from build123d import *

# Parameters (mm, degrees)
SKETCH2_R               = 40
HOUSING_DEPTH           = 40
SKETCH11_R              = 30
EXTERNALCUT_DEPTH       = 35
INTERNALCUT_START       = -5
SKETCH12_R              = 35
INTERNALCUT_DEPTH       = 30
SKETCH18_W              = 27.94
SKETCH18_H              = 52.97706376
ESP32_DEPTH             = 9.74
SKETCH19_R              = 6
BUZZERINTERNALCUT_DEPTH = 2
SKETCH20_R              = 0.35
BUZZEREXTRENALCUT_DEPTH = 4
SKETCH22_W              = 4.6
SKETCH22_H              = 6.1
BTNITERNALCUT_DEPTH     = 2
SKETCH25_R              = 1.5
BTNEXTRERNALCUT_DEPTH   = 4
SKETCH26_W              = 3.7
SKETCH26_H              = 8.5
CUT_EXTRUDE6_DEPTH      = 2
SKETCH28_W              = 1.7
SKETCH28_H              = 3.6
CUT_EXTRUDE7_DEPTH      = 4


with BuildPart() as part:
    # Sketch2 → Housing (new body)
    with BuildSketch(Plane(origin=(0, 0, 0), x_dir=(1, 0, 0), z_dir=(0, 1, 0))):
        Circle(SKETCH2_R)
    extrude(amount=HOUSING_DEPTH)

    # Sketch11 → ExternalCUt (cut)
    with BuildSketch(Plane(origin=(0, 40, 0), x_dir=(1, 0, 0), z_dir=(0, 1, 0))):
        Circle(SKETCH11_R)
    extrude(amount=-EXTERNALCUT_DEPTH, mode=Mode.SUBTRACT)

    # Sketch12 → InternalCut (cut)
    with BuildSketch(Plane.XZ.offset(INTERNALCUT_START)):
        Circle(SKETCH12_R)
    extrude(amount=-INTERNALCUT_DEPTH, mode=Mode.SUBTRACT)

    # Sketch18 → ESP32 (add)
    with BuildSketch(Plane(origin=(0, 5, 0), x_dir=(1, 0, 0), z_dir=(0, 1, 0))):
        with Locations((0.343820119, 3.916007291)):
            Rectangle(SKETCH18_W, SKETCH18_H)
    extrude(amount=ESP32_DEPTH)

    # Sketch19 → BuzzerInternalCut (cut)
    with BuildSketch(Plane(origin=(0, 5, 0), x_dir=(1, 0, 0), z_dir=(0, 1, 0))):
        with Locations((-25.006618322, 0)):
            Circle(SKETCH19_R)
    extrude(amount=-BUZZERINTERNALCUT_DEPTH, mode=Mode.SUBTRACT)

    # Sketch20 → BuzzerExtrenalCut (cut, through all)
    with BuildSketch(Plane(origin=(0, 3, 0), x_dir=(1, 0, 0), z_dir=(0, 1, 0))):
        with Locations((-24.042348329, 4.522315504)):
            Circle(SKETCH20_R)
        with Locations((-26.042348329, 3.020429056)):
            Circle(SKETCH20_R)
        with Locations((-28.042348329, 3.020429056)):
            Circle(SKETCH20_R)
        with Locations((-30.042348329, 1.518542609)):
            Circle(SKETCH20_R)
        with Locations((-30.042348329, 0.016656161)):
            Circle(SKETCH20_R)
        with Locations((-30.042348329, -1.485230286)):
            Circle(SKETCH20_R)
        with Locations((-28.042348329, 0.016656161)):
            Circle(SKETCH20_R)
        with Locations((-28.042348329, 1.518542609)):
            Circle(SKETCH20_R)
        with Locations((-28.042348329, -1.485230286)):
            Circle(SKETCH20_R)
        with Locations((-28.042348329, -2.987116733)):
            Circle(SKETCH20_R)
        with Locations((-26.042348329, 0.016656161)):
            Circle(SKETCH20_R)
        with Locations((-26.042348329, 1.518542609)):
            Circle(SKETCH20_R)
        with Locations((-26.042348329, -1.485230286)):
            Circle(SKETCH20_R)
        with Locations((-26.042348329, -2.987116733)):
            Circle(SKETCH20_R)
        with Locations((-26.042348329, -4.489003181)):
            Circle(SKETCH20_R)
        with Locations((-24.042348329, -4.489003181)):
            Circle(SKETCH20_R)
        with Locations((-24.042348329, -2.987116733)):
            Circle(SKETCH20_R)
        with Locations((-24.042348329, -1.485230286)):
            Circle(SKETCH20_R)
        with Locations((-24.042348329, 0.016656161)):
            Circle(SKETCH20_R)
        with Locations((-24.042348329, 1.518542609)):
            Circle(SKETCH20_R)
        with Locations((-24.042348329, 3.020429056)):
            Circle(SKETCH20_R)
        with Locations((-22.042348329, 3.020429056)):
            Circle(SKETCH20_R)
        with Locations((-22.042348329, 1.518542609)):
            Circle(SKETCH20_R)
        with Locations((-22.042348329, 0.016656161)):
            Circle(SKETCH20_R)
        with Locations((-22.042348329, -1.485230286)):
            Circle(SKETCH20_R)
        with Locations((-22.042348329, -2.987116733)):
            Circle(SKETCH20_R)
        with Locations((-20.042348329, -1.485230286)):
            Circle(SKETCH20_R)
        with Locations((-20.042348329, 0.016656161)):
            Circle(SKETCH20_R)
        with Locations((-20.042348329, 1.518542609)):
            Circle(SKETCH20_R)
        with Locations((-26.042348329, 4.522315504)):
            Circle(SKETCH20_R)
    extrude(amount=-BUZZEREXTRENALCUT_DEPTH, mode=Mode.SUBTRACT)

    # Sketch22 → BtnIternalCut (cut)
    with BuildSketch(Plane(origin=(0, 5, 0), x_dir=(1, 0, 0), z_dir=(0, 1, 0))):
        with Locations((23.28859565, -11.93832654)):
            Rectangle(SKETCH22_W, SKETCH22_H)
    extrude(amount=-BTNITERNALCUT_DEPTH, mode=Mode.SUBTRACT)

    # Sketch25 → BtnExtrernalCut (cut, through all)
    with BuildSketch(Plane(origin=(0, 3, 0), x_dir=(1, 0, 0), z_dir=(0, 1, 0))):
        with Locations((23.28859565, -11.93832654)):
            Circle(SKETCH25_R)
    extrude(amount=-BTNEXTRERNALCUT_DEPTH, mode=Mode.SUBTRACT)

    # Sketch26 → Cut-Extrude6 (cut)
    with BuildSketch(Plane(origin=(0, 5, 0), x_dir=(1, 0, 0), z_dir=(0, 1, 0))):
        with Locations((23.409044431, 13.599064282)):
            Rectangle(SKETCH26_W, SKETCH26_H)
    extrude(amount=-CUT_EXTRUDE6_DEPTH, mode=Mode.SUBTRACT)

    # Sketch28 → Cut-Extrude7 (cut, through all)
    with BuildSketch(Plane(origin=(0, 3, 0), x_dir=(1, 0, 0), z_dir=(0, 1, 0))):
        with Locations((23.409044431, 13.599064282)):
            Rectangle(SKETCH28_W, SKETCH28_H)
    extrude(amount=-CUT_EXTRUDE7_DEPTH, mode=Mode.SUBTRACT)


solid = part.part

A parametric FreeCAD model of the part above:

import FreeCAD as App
import Part
import Sketcher

V = App.Vector

doc = App.newDocument("Part")
body = doc.addObject("PartDesign::Body", "Body")

sketch1 = body.newObject("Sketcher::SketchObject", "Sketch")
sketch1.AttachmentSupport = (doc.getObject("XZ_Plane"), [""])
sketch1.MapMode = "FlatFace"
sketch1.addGeometry(Part.Circle(V(0, 0, 0), V(0, 0, 1), 40), False)
sketch1.addConstraint([
    Sketcher.Constraint("Coincident", 0, 3, -1, 1),
    Sketcher.Constraint("Diameter", 0, 80.0),
])
pad1 = body.newObject("PartDesign::Pad", "Pad")
pad1.Profile = sketch1
pad1.Length = 40
pad1.Reversed = True

sketch2 = body.newObject("Sketcher::SketchObject", "Sketch001")
sketch2.AttachmentSupport = (doc.getObject("XZ_Plane"), [""])
sketch2.MapMode = "FlatFace"
sketch2.AttachmentOffset = App.Placement(V(0, 0, -40), App.Rotation())
sketch2.addGeometry(Part.Circle(V(0, 0, 0), V(0, 0, 1), 30), False)
sketch2.addConstraint([
    Sketcher.Constraint("Coincident", 0, 3, -1, 1),
    Sketcher.Constraint("Diameter", 0, 60.0),
])
pocket1 = body.newObject("PartDesign::Pocket", "Pocket")
pocket1.Profile = sketch2
pocket1.Length = 35
pocket1.Reversed = True

sketch3 = body.newObject("Sketcher::SketchObject", "Sketch002")
sketch3.AttachmentSupport = (doc.getObject("XZ_Plane"), [""])
sketch3.MapMode = "FlatFace"
sketch3.AttachmentOffset = App.Placement(V(0, 0, -5), App.Rotation())
sketch3.addGeometry(Part.Circle(V(0, 0, 0), V(0, 0, 1), 35), False)
sketch3.addConstraint([
    Sketcher.Constraint("Coincident", 0, 3, -1, 1),
    Sketcher.Constraint("Diameter", 0, 70.0),
])
pocket2 = body.newObject("PartDesign::Pocket", "Pocket001")
pocket2.Profile = sketch3
pocket2.Length = 30

sketch4 = body.newObject("Sketcher::SketchObject", "Sketch003")
sketch4.AttachmentSupport = (doc.getObject("XZ_Plane"), [""])
sketch4.MapMode = "FlatFace"
sketch4.AttachmentOffset = App.Placement(V(0, 0, -5), App.Rotation())
sketch4.addGeometry([
    Part.LineSegment(V(-14, -30, 0), V(-14, 23, 0)),
    Part.LineSegment(V(-14, 23, 0), V(14, 23, 0)),
    Part.LineSegment(V(14, 23, 0), V(14, -30, 0)),
    Part.LineSegment(V(14, -30, 0), V(-14, -30, 0)),
], False)
sketch4.addConstraint([
    Sketcher.Constraint("Coincident", 0, 2, 1, 1),
    Sketcher.Constraint("Coincident", 1, 2, 2, 1),
    Sketcher.Constraint("Coincident", 2, 2, 3, 1),
    Sketcher.Constraint("Coincident", 3, 2, 0, 1),
    Sketcher.Constraint("Vertical", 0),
    Sketcher.Constraint("Horizontal", 1),
    Sketcher.Constraint("Vertical", 2),
    Sketcher.Constraint("Horizontal", 3),
    Sketcher.Constraint("DistanceX", 1, 1, 1, 2, 27.94),
    Sketcher.Constraint("DistanceY", 0, 1, 0, 2, 52.977064),
    Sketcher.Constraint("DistanceX", 0, 2, -1, 1, 13.62618),
    Sketcher.Constraint("DistanceY", 2, 2, -1, 1, 30.404539),
])
pad2 = body.newObject("PartDesign::Pad", "Pad001")
pad2.Profile = sketch4
pad2.Length = 9.74
pad2.Reversed = True

sketch5 = body.newObject("Sketcher::SketchObject", "Sketch004")
sketch5.AttachmentSupport = (doc.getObject("XZ_Plane"), [""])
sketch5.MapMode = "FlatFace"
sketch5.AttachmentOffset = App.Placement(V(0, 0, -5), App.Rotation())
sketch5.addGeometry(Part.Circle(V(-25, 0, 0), V(0, 0, 1), 6), False)
sketch5.addConstraint([
    Sketcher.Constraint("PointOnObject", 0, 3, -1),
    Sketcher.Constraint("Diameter", 0, 12.0),
    Sketcher.Constraint("DistanceX", 0, 3, -1, 1, 25.006618),
])
pocket3 = body.newObject("PartDesign::Pocket", "Pocket002")
pocket3.Profile = sketch5
pocket3.Length = 2
pocket3.Reversed = True

sketch6 = body.newObject("Sketcher::SketchObject", "Sketch005")
sketch6.AttachmentSupport = (doc.getObject("XZ_Plane"), [""])
sketch6.MapMode = "FlatFace"
sketch6.AttachmentOffset = App.Placement(V(0, 0, -3), App.Rotation())
sketch6.addGeometry([
    Part.Circle(V(-24.04, -4.52, 0), V(0, 0, 1), 0.35),
    Part.Circle(V(-26.04, -3.02, 0), V(0, 0, 1), 0.35),
    Part.Circle(V(-28.04, -3.02, 0), V(0, 0, 1), 0.35),
    Part.Circle(V(-30.04, -1.52, 0), V(0, 0, 1), 0.35),
    Part.Circle(V(-30.04, -0.02, 0), V(0, 0, 1), 0.35),
    Part.Circle(V(-30.04, 1.49, 0), V(0, 0, 1), 0.35),
    Part.Circle(V(-28.04, -0.02, 0), V(0, 0, 1), 0.35),
    Part.Circle(V(-28.04, -1.52, 0), V(0, 0, 1), 0.35),
    Part.Circle(V(-28.04, 1.49, 0), V(0, 0, 1), 0.35),
    Part.Circle(V(-28.04, 2.99, 0), V(0, 0, 1), 0.35),
    Part.Circle(V(-26.04, -0.02, 0), V(0, 0, 1), 0.35),
    Part.Circle(V(-26.04, -1.52, 0), V(0, 0, 1), 0.35),
    Part.Circle(V(-26.04, 1.49, 0), V(0, 0, 1), 0.35),
    Part.Circle(V(-26.04, 2.99, 0), V(0, 0, 1), 0.35),
    Part.Circle(V(-26.04, 4.49, 0), V(0, 0, 1), 0.35),
    Part.Circle(V(-24.04, 4.49, 0), V(0, 0, 1), 0.35),
    Part.Circle(V(-24.04, 2.99, 0), V(0, 0, 1), 0.35),
    Part.Circle(V(-24.04, 1.49, 0), V(0, 0, 1), 0.35),
    Part.Circle(V(-24.04, -0.02, 0), V(0, 0, 1), 0.35),
    Part.Circle(V(-24.04, -1.52, 0), V(0, 0, 1), 0.35),
    Part.Circle(V(-24.04, -3.02, 0), V(0, 0, 1), 0.35),
    Part.Circle(V(-22.04, -3.02, 0), V(0, 0, 1), 0.35),
    Part.Circle(V(-22.04, -1.52, 0), V(0, 0, 1), 0.35),
    Part.Circle(V(-22.04, -0.02, 0), V(0, 0, 1), 0.35),
    Part.Circle(V(-22.04, 1.49, 0), V(0, 0, 1), 0.35),
    Part.Circle(V(-22.04, 2.99, 0), V(0, 0, 1), 0.35),
    Part.Circle(V(-20.04, 1.49, 0), V(0, 0, 1), 0.35),
    Part.Circle(V(-20.04, -0.02, 0), V(0, 0, 1), 0.35),
    Part.Circle(V(-20.04, -1.52, 0), V(0, 0, 1), 0.35),
    Part.Circle(V(-26.04, -4.52, 0), V(0, 0, 1), 0.35),
], False)
sketch6.addConstraint([
    Sketcher.Constraint("Equal", 0, 1),
    Sketcher.Constraint("Equal", 1, 2),
    Sketcher.Constraint("Equal", 2, 3),
    Sketcher.Constraint("Equal", 3, 4),
    Sketcher.Constraint("Equal", 4, 5),
    Sketcher.Constraint("Equal", 5, 6),
    Sketcher.Constraint("Equal", 6, 7),
    Sketcher.Constraint("Equal", 7, 8),
    Sketcher.Constraint("Equal", 8, 9),
    Sketcher.Constraint("Equal", 9, 10),
    Sketcher.Constraint("Equal", 10, 11),
    Sketcher.Constraint("Equal", 11, 12),
    Sketcher.Constraint("Equal", 12, 13),
    Sketcher.Constraint("Equal", 13, 14),
    Sketcher.Constraint("Equal", 14, 15),
    Sketcher.Constraint("Equal", 15, 16),
    Sketcher.Constraint("Equal", 16, 17),
    Sketcher.Constraint("Equal", 17, 18),
    Sketcher.Constraint("Equal", 18, 19),
    Sketcher.Constraint("Equal", 19, 20),
    Sketcher.Constraint("Equal", 20, 21),
    Sketcher.Constraint("Equal", 21, 22),
    Sketcher.Constraint("Equal", 22, 23),
    Sketcher.Constraint("Equal", 23, 24),
    Sketcher.Constraint("Equal", 24, 25),
    Sketcher.Constraint("Equal", 25, 26),
    Sketcher.Constraint("Equal", 26, 27),
    Sketcher.Constraint("Equal", 27, 28),
    Sketcher.Constraint("Equal", 28, 29),
    Sketcher.Constraint("Horizontal", 1, 3, 2, 3),
    Sketcher.Constraint("Horizontal", 4, 3, 6, 3),
    Sketcher.Constraint("Horizontal", 3, 3, 7, 3),
    Sketcher.Constraint("Horizontal", 5, 3, 8, 3),
    Sketcher.Constraint("Horizontal", 6, 3, 10, 3),
    Sketcher.Constraint("Horizontal", 7, 3, 11, 3),
    Sketcher.Constraint("Horizontal", 8, 3, 12, 3),
    Sketcher.Constraint("Horizontal", 9, 3, 13, 3),
    Sketcher.Constraint("Horizontal", 14, 3, 15, 3),
    Sketcher.Constraint("Horizontal", 13, 3, 16, 3),
    Sketcher.Constraint("Horizontal", 12, 3, 17, 3),
    Sketcher.Constraint("Horizontal", 10, 3, 18, 3),
    Sketcher.Constraint("Horizontal", 11, 3, 19, 3),
    Sketcher.Constraint("Horizontal", 2, 3, 20, 3),
    Sketcher.Constraint("Horizontal", 20, 3, 21, 3),
    Sketcher.Constraint("Horizontal", 19, 3, 22, 3),
    Sketcher.Constraint("Horizontal", 18, 3, 23, 3),
    Sketcher.Constraint("Horizontal", 17, 3, 24, 3),
    Sketcher.Constraint("Horizontal", 16, 3, 25, 3),
    Sketcher.Constraint("Horizontal", 24, 3, 26, 3),
    Sketcher.Constraint("Horizontal", 23, 3, 27, 3),
    Sketcher.Constraint("Horizontal", 22, 3, 28, 3),
    Sketcher.Constraint("Horizontal", 0, 3, 29, 3),
    Sketcher.Constraint("Vertical", 3, 3, 4, 3),
    Sketcher.Constraint("Vertical", 4, 3, 5, 3),
    Sketcher.Constraint("Vertical", 2, 3, 6, 3),
    Sketcher.Constraint("Vertical", 6, 3, 7, 3),
    Sketcher.Constraint("Vertical", 7, 3, 8, 3),
    Sketcher.Constraint("Vertical", 8, 3, 9, 3),
    Sketcher.Constraint("Vertical", 1, 3, 10, 3),
    Sketcher.Constraint("Vertical", 10, 3, 11, 3),
    Sketcher.Constraint("Vertical", 11, 3, 12, 3),
    Sketcher.Constraint("Vertical", 12, 3, 13, 3),
    Sketcher.Constraint("Vertical", 13, 3, 14, 3),
    Sketcher.Constraint("Vertical", 0, 3, 15, 3),
    Sketcher.Constraint("Vertical", 15, 3, 16, 3),
    Sketcher.Constraint("Vertical", 16, 3, 17, 3),
    Sketcher.Constraint("Vertical", 17, 3, 18, 3),
    Sketcher.Constraint("Vertical", 18, 3, 19, 3),
    Sketcher.Constraint("Vertical", 19, 3, 20, 3),
    Sketcher.Constraint("Vertical", 21, 3, 22, 3),
    Sketcher.Constraint("Vertical", 22, 3, 23, 3),
    Sketcher.Constraint("Vertical", 23, 3, 24, 3),
    Sketcher.Constraint("Vertical", 24, 3, 25, 3),
    Sketcher.Constraint("Vertical", 26, 3, 27, 3),
    Sketcher.Constraint("Vertical", 27, 3, 28, 3),
    Sketcher.Constraint("Vertical", 14, 3, 29, 3),
    Sketcher.Constraint("Diameter", 0, 0.7),
    Sketcher.Constraint("DistanceX", 1, 3, 0, 3, 2.0),
    Sketcher.Constraint("DistanceX", 2, 3, 1, 3, 2.0),
    Sketcher.Constraint("DistanceX", 3, 3, 2, 3, 2.0),
    Sketcher.Constraint("DistanceX", 20, 3, 21, 3, 2.0),
    Sketcher.Constraint("DistanceX", 24, 3, 26, 3, 2.0),
    Sketcher.Constraint("DistanceX", 0, 3, -1, 1, 24.042348),
    Sketcher.Constraint("DistanceY", 1, 3, -1, 1, 3.020429),
    Sketcher.Constraint("DistanceY", -1, 1, 5, 3, 1.48523),
    Sketcher.Constraint("DistanceY", 0, 3, 4, 3, 4.505659),
    Sketcher.Constraint("DistanceY", 7, 3, 9, 3, 4.505659),
    Sketcher.Constraint("DistanceY", 10, 3, 14, 3, 4.505659),
    Sketcher.Constraint("DistanceY", 0, 3, -1, 1, 4.522316),
    Sketcher.Constraint("DistanceY", 3, 3, -1, 1, 1.518543),
])
pocket4 = body.newObject("PartDesign::Pocket", "Pocket003")
pocket4.Profile = sketch6
pocket4.Type = "ThroughAll"
pocket4.Reversed = True

sketch7 = body.newObject("Sketcher::SketchObject", "Sketch006")
sketch7.AttachmentSupport = (doc.getObject("XZ_Plane"), [""])
sketch7.MapMode = "FlatFace"
sketch7.AttachmentOffset = App.Placement(V(0, 0, -5), App.Rotation())
sketch7.addGeometry([
    Part.LineSegment(V(21, 8.9, 0), V(21, 15, 0)),
    Part.LineSegment(V(21, 15, 0), V(25.6, 15, 0)),
    Part.LineSegment(V(25.6, 15, 0), V(25.6, 8.9, 0)),
    Part.LineSegment(V(25.6, 8.9, 0), V(21, 8.9, 0)),
], False)
sketch7.addConstraint([
    Sketcher.Constraint("Coincident", 0, 2, 1, 1),
    Sketcher.Constraint("Coincident", 1, 2, 2, 1),
    Sketcher.Constraint("Coincident", 2, 2, 3, 1),
    Sketcher.Constraint("Coincident", 3, 2, 0, 1),
    Sketcher.Constraint("Vertical", 0),
    Sketcher.Constraint("Horizontal", 1),
    Sketcher.Constraint("Vertical", 2),
    Sketcher.Constraint("Horizontal", 3),
    Sketcher.Constraint("DistanceX", 1, 1, 1, 2, 4.6),
    Sketcher.Constraint("DistanceY", 0, 1, 0, 2, 6.1),
    Sketcher.Constraint("DistanceX", -1, 1, 0, 2, 20.988596),
    Sketcher.Constraint("DistanceY", -1, 1, 0, 2, 14.988327),
])
pocket5 = body.newObject("PartDesign::Pocket", "Pocket004")
pocket5.Profile = sketch7
pocket5.Length = 2
pocket5.Reversed = True

sketch8 = body.newObject("Sketcher::SketchObject", "Sketch007")
sketch8.AttachmentSupport = (doc.getObject("XZ_Plane"), [""])
sketch8.MapMode = "FlatFace"
sketch8.AttachmentOffset = App.Placement(V(0, 0, -3), App.Rotation())
sketch8.addGeometry(Part.Circle(V(23.3, 11.9, 0), V(0, 0, 1), 1.5), False)
sketch8.addConstraint([
    Sketcher.Constraint("Diameter", 0, 3.0),
    Sketcher.Constraint("DistanceX", -1, 1, 0, 3, 23.288596),
    Sketcher.Constraint("DistanceY", -1, 1, 0, 3, 11.938327),
])
pocket6 = body.newObject("PartDesign::Pocket", "Pocket005")
pocket6.Profile = sketch8
pocket6.Type = "ThroughAll"
pocket6.Reversed = True

sketch9 = body.newObject("Sketcher::SketchObject", "Sketch008")
sketch9.AttachmentSupport = (doc.getObject("XZ_Plane"), [""])
sketch9.MapMode = "FlatFace"
sketch9.AttachmentOffset = App.Placement(V(0, 0, -5), App.Rotation())
sketch9.addGeometry([
    Part.LineSegment(V(21.6, -17.8, 0), V(21.6, -9.3, 0)),
    Part.LineSegment(V(21.6, -9.3, 0), V(25.3, -9.3, 0)),
    Part.LineSegment(V(25.3, -9.3, 0), V(25.3, -17.8, 0)),
    Part.LineSegment(V(25.3, -17.8, 0), V(21.6, -17.8, 0)),
], False)
sketch9.addConstraint([
    Sketcher.Constraint("Coincident", 0, 2, 1, 1),
    Sketcher.Constraint("Coincident", 1, 2, 2, 1),
    Sketcher.Constraint("Coincident", 2, 2, 3, 1),
    Sketcher.Constraint("Coincident", 3, 2, 0, 1),
    Sketcher.Constraint("Vertical", 0),
    Sketcher.Constraint("Horizontal", 1),
    Sketcher.Constraint("Vertical", 2),
    Sketcher.Constraint("Horizontal", 3),
    Sketcher.Constraint("DistanceX", 1, 1, 1, 2, 3.7),
    Sketcher.Constraint("DistanceY", 0, 1, 0, 2, 8.5),
    Sketcher.Constraint("DistanceX", -1, 1, 0, 2, 21.559044),
    Sketcher.Constraint("DistanceY", 0, 2, -1, 1, 9.349064),
])
pocket7 = body.newObject("PartDesign::Pocket", "Pocket006")
pocket7.Profile = sketch9
pocket7.Length = 2
pocket7.Reversed = True

sketch10 = body.newObject("Sketcher::SketchObject", "Sketch009")
sketch10.AttachmentSupport = (doc.getObject("XZ_Plane"), [""])
sketch10.MapMode = "FlatFace"
sketch10.AttachmentOffset = App.Placement(V(0, 0, -3), App.Rotation())
sketch10.addGeometry([
    Part.LineSegment(V(22.6, -15.4, 0), V(22.6, -11.8, 0)),
    Part.LineSegment(V(22.6, -11.8, 0), V(24.3, -11.8, 0)),
    Part.LineSegment(V(24.3, -11.8, 0), V(24.3, -15.4, 0)),
    Part.LineSegment(V(24.3, -15.4, 0), V(22.6, -15.4, 0)),
], False)
sketch10.addConstraint([
    Sketcher.Constraint("Coincident", 0, 2, 1, 1),
    Sketcher.Constraint("Coincident", 1, 2, 2, 1),
    Sketcher.Constraint("Coincident", 2, 2, 3, 1),
    Sketcher.Constraint("Coincident", 3, 2, 0, 1),
    Sketcher.Constraint("Vertical", 0),
    Sketcher.Constraint("Horizontal", 1),
    Sketcher.Constraint("Vertical", 2),
    Sketcher.Constraint("Horizontal", 3),
    Sketcher.Constraint("DistanceX", 1, 1, 1, 2, 1.7),
    Sketcher.Constraint("DistanceY", 0, 1, 0, 2, 3.6),
    Sketcher.Constraint("DistanceX", -1, 1, 0, 2, 22.559044),
    Sketcher.Constraint("DistanceY", 0, 2, -1, 1, 11.799064),
])
pocket8 = body.newObject("PartDesign::Pocket", "Pocket007")
pocket8.Profile = sketch10
pocket8.Type = "ThroughAll"
pocket8.Reversed = True

doc.recompute()
